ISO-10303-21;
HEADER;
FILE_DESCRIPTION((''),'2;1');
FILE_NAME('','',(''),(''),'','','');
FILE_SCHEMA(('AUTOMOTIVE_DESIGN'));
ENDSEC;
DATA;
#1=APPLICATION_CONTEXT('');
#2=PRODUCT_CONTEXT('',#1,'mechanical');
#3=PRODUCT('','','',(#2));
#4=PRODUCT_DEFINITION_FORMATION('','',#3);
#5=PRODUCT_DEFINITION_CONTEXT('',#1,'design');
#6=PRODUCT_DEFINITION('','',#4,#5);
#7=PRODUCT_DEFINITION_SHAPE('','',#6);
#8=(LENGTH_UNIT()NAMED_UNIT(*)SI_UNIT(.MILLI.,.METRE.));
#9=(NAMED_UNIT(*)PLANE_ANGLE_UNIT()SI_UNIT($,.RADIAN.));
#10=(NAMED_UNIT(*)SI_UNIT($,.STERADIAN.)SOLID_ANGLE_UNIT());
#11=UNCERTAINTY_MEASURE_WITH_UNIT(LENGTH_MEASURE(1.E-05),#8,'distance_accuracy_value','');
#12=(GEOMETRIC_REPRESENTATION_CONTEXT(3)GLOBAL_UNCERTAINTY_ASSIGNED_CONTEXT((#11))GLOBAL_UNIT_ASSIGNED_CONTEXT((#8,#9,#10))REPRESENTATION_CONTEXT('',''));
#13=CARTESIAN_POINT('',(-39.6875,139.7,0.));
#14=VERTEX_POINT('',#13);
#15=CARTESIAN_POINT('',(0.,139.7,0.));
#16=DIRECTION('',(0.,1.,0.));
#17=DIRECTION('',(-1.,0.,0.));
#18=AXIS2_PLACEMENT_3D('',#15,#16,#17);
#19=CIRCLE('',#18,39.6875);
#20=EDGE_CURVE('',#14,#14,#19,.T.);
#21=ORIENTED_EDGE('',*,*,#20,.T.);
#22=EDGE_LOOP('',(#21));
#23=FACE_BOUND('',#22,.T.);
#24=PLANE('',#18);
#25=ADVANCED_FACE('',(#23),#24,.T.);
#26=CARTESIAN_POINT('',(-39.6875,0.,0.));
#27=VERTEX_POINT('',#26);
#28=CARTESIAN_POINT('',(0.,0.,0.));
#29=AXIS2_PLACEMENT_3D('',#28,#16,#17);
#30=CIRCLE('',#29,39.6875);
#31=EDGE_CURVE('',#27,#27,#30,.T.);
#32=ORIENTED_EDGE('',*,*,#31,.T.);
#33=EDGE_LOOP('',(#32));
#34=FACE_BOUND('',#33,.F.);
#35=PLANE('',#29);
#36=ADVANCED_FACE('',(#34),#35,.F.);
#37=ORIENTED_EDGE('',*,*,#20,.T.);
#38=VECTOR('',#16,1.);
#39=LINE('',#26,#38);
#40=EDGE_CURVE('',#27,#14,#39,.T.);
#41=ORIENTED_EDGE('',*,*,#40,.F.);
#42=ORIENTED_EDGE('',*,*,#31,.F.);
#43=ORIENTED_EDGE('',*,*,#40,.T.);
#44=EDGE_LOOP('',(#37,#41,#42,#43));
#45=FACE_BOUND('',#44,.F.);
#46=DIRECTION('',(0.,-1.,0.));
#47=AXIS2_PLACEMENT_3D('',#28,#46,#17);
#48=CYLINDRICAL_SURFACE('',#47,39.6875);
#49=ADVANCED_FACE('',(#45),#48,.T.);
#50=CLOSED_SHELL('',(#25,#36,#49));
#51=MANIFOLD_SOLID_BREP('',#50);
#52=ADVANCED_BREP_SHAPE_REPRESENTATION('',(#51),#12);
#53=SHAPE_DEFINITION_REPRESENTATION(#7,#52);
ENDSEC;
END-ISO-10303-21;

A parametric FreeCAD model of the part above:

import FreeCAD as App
import Part
import Sketcher
Q = App.Units.Quantity

doc = App.newDocument("Part")
body = doc.addObject("PartDesign::Body", "Body")

# Sketch on XZ plane
sketch1 = body.newObject("Sketcher::SketchObject", "Sketch")
sketch1.AttachmentSupport = (doc.getObject("XZ_Plane"), [""])
sketch1.MapMode = "FlatFace"
sketch1.addGeometry(Part.Circle(App.Vector(0, 0, 0), App.Vector(0, 0, 1), 39.6875), False)
sketch1.addConstraint([
    Sketcher.Constraint("Coincident", 0, 3, -1, 1),
    Sketcher.Constraint("Diameter", 0, Q("3.125 in")),
])
pad1 = body.newObject("PartDesign::Pad", "Pad")
pad1.Profile = sketch1
pad1.Length = Q("5.5 in")
pad1.Reversed = True

doc.recompute()
